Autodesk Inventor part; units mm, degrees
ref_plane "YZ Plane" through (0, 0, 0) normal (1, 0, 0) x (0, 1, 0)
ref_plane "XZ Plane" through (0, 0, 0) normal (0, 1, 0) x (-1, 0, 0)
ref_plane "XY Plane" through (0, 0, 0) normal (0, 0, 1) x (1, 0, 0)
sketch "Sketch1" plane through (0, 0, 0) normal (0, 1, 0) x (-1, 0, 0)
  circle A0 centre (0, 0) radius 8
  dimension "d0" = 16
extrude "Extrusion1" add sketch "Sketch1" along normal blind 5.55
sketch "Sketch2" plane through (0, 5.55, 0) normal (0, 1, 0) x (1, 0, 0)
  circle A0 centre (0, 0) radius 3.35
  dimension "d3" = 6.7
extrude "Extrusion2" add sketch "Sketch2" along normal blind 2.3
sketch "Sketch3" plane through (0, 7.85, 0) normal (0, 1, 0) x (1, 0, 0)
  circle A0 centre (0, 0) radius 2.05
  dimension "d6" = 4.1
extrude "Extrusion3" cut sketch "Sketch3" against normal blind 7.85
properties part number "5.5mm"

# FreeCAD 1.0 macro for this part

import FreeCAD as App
import Part
import Sketcher

V = App.Vector

doc = App.newDocument("Part")
body = doc.addObject("PartDesign::Body", "Body")

# Sketch on XZ plane
sketch1 = doc.addObject("Sketcher::SketchObject", "Sketch")
body.addObject(sketch1)
sketch1.AttachmentSupport = (doc.XZ_Plane, [""])
sketch1.MapMode = "FlatFace"
sketch1.addGeometry(Part.Circle(V(0, 0, 0), V(0, 0, 1), 8), False)
sketch1.addConstraint(Sketcher.Constraint("Coincident", 0, 3, -1, 1))
sketch1.addConstraint(Sketcher.Constraint("Diameter", 0, 16.0))
pad1 = doc.addObject("PartDesign::Pad", "Pad")
body.addObject(pad1)
pad1.Profile = sketch1
pad1.Length = 5.55
pad1.Reversed = True

# Sketch on XZ plane
sketch2 = doc.addObject("Sketcher::SketchObject", "Sketch001")
body.addObject(sketch2)
sketch2.AttachmentSupport = (doc.XZ_Plane, [""])
sketch2.MapMode = "FlatFace"
sketch2.AttachmentOffset = App.Placement(V(0, 0, -5.55), App.Rotation())
sketch2.addGeometry(Part.Circle(V(0, 0, 0), V(0, 0, 1), 3.4), False)
sketch2.addConstraint(Sketcher.Constraint("Coincident", 0, 3, -1, 1))
sketch2.addConstraint(Sketcher.Constraint("Diameter", 0, 6.7))
pad2 = doc.addObject("PartDesign::Pad", "Pad001")
body.addObject(pad2)
pad2.Profile = sketch2
pad2.Length = 2.3
pad2.Reversed = True

# Sketch on XZ plane
sketch3 = doc.addObject("Sketcher::SketchObject", "Sketch002")
body.addObject(sketch3)
sketch3.AttachmentSupport = (doc.XZ_Plane, [""])
sketch3.MapMode = "FlatFace"
sketch3.AttachmentOffset = App.Placement(V(0, 0, -7.85), App.Rotation())
sketch3.addGeometry(Part.Circle(V(0, 0, 0), V(0, 0, 1), 2), False)
sketch3.addConstraint(Sketcher.Constraint("Coincident", 0, 3, -1, 1))
sketch3.addConstraint(Sketcher.Constraint("Diameter", 0, 4.1))
pocket1 = doc.addObject("PartDesign::Pocket", "Pocket")
body.addObject(pocket1)
pocket1.Profile = sketch3
pocket1.Length = 7.85
pocket1.Reversed = True

doc.recompute()
